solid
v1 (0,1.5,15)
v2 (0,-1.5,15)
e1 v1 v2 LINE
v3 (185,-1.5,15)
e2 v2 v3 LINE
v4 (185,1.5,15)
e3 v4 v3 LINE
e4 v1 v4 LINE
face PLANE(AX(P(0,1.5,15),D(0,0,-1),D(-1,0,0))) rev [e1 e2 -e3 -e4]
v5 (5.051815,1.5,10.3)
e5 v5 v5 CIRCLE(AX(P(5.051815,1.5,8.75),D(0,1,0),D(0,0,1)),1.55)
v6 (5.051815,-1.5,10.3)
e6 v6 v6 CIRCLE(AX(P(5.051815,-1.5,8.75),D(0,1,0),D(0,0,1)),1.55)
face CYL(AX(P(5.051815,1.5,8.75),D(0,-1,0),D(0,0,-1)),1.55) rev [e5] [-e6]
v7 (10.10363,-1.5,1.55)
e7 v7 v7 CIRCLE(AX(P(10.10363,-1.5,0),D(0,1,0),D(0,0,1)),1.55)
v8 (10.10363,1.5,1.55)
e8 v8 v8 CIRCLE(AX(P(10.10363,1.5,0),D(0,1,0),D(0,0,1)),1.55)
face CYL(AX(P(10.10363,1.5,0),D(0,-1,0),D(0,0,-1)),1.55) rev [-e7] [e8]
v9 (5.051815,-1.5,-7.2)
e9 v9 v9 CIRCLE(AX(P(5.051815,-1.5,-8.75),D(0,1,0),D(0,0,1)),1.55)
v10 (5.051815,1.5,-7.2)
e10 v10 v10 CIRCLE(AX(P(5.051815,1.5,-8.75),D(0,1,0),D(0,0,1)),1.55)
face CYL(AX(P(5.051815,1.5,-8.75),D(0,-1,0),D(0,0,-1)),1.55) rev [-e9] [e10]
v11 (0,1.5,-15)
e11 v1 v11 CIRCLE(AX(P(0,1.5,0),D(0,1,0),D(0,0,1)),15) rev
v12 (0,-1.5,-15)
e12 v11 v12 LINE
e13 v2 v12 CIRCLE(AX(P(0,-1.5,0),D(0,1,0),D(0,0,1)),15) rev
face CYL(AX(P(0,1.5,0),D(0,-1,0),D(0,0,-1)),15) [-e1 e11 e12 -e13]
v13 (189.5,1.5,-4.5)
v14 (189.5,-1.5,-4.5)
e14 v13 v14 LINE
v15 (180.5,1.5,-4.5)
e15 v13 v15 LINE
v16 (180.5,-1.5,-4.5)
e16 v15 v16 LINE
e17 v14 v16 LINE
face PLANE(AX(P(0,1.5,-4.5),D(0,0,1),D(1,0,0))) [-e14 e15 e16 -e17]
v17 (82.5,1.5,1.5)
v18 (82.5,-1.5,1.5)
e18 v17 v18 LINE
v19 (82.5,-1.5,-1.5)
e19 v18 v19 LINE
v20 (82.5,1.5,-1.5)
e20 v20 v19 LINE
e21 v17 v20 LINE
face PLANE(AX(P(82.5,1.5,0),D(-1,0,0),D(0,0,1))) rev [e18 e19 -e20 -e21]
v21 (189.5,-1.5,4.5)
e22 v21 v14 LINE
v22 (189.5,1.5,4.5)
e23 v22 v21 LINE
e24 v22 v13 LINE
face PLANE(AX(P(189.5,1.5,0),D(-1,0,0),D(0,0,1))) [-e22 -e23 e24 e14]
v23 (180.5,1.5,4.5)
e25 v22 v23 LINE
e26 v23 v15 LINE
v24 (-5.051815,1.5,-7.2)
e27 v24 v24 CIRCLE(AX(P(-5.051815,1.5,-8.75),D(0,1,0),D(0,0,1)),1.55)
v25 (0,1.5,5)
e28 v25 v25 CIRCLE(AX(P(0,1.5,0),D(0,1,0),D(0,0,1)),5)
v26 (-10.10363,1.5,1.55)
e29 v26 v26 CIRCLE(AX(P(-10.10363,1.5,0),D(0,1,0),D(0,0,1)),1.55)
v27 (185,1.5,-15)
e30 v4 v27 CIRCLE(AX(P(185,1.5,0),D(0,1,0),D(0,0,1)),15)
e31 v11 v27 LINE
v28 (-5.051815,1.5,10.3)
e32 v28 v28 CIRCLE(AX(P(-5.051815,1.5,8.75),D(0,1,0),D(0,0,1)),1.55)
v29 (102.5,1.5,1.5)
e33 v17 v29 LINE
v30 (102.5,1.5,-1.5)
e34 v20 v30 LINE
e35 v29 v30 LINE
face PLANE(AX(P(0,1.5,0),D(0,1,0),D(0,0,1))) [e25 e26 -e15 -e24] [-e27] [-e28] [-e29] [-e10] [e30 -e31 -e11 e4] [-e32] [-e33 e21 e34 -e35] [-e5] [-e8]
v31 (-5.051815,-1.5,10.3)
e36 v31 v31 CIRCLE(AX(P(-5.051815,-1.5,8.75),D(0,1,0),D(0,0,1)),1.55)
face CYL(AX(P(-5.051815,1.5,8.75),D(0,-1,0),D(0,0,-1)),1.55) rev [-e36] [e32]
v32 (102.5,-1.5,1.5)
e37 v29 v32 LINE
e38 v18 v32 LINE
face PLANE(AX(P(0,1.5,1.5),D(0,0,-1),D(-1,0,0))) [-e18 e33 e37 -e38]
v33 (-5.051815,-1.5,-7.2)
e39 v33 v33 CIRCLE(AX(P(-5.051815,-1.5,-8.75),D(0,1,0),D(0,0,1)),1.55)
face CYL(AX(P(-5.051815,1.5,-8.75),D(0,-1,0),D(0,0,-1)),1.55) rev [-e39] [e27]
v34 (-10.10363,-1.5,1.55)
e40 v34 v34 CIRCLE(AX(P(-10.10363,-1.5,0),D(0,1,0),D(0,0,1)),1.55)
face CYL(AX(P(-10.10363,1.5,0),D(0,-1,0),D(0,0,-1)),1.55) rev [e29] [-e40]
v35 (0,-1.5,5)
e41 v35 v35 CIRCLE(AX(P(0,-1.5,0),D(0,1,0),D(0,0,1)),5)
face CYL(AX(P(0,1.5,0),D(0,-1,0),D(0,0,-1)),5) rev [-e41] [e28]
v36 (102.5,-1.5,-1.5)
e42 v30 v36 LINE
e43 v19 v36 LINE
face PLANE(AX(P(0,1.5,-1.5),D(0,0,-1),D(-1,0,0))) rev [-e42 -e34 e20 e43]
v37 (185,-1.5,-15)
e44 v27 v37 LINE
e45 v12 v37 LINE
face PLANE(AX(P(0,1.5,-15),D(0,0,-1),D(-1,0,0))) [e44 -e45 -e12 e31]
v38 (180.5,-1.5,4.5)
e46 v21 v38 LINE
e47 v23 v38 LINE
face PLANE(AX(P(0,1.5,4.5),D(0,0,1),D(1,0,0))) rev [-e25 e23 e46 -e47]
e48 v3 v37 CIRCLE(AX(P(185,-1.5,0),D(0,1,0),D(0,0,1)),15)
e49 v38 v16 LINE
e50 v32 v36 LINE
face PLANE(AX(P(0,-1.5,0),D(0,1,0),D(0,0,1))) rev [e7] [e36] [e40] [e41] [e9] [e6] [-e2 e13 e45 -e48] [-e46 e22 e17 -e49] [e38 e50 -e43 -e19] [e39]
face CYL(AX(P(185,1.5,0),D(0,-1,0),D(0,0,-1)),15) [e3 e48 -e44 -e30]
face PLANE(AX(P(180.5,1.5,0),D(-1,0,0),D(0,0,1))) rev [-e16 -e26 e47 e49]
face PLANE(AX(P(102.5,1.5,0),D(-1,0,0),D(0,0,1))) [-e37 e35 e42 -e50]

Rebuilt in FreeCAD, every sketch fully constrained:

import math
import FreeCAD as App
import Part
import Sketcher

V = App.Vector
Q = App.Units.Quantity


def add_polygon(sketch, points):
    """Adds a closed chain of lines whose ends are joined by coincident constraints."""
    first, n = sketch.GeometryCount, len(points)
    for a, b in zip(points, points[1:] + points[:1]):
        sketch.addGeometry(Part.LineSegment(App.Vector(*a, 0), App.Vector(*b, 0)), False)
    for i in range(n):
        sketch.addConstraint(Sketcher.Constraint("Coincident", first + i, 2, first + (i + 1) % n, 1))

doc = App.newDocument("Part")
body = doc.addObject("PartDesign::Body", "Body")

# Sketch on XZ plane
sketch1 = doc.addObject("Sketcher::SketchObject", "Sketch")
body.addObject(sketch1)
sketch1.AttachmentSupport = (doc.XZ_Plane, [""])
sketch1.MapMode = "FlatFace"
sketch1.addGeometry(Part.LineSegment(V(185, -15, 0), V(0, -15, 0)), False)  # 0
sketch1.addGeometry(Part.ArcOfCircle(Part.Circle(V(0, 0, 0), V(0, 0, 1), 15), math.radians(90), math.radians(270)), False)  # 1
sketch1.addGeometry(Part.LineSegment(V(0, 15, 0), V(185, 15, 0)), False)  # 2
sketch1.addGeometry(Part.ArcOfCircle(Part.Circle(V(185, 0, 0), V(0, 0, 1), 15), math.radians(-90), math.radians(90)), False)  # 3
sketch1.addGeometry(Part.Circle(V(5.1, 8.8, 0), V(0, 0, 1), 1.6), False)  # 4
sketch1.addGeometry(Part.Circle(V(-5.1, 8.8, 0), V(0, 0, 1), 1.6), False)  # 5
add_polygon(sketch1, [(180.5, 4.5), (180.5, -4.5), (189.5, -4.5), (189.5, 4.5)])  # lines 6-9
add_polygon(sketch1, [(82.5, 1.5), (82.5, -1.5), (102.5, -1.5), (102.5, 1.5)])  # lines 10-13
sketch1.addGeometry(Part.Circle(V(10.1, 0, 0), V(0, 0, 1), 1.6), False)  # 14
sketch1.addGeometry(Part.Circle(V(0, 0, 0), V(0, 0, 1), 5), False)  # 15
sketch1.addGeometry(Part.Circle(V(-10.1, 0, 0), V(0, 0, 1), 1.6), False)  # 16
sketch1.addGeometry(Part.Circle(V(5.1, -8.8, 0), V(0, 0, 1), 1.6), False)  # 17
sketch1.addGeometry(Part.Circle(V(-5.1, -8.8, 0), V(0, 0, 1), 1.6), False)  # 18
sketch1.addConstraint([
    Sketcher.Constraint("Tangent", 0, 2, 1, 2),
    Sketcher.Constraint("Tangent", 1, 1, 2, 1),
    Sketcher.Constraint("Tangent", 2, 2, 3, 2),
    Sketcher.Constraint("Tangent", 3, 1, 0, 1),
    Sketcher.Constraint("Horizontal", 0),
    Sketcher.Constraint("Horizontal", 2),
    Sketcher.Constraint("Vertical", 6),
    Sketcher.Constraint("Horizontal", 7),
    Sketcher.Constraint("Vertical", 8),
    Sketcher.Constraint("Horizontal", 9),
    Sketcher.Constraint("Vertical", 10),
    Sketcher.Constraint("Horizontal", 11),
    Sketcher.Constraint("Vertical", 12),
    Sketcher.Constraint("Horizontal", 13),
    Sketcher.Constraint("Coincident", 1, 3, -1, 1),
    Sketcher.Constraint("Coincident", 15, 3, -1, 1),
    Sketcher.Constraint("Equal", 4, 5),
    Sketcher.Constraint("Equal", 5, 14),
    Sketcher.Constraint("Equal", 14, 16),
    Sketcher.Constraint("Equal", 16, 17),
    Sketcher.Constraint("Equal", 17, 18),
    Sketcher.Constraint("Symmetric", 14, 3, 16, 3, -1, 1),
    Sketcher.Constraint("Symmetric", 5, 3, 17, 3, -1, 1),
    Sketcher.Constraint("Symmetric", 4, 3, 18, 3, -1, 1),
    Sketcher.Constraint("Symmetric", 4, 3, 5, 3, -2),
    Sketcher.Constraint("PointOnObject", 14, 3, -1),
    Sketcher.Constraint("Equal", 9, 6),
    Sketcher.Constraint("Diameter", 15, Q("10 mm")),
    Sketcher.Constraint("Radius", 1, Q("15 mm")),
    Sketcher.Constraint("Diameter", 4, Q("3.1 mm")),
    Sketcher.Constraint("DistanceX", 0, 2, 0, 1, Q("185 mm")),
    Sketcher.Constraint("DistanceX", 7, 1, 7, 2, Q("9 mm")),
    Sketcher.Constraint("DistanceX", 11, 1, 11, 2, Q("20 mm")),
    Sketcher.Constraint("DistanceY", 10, 2, 10, 1, Q("3 mm")),
    Sketcher.Constraint("DistanceX", 11, 2, 6, 2, Q("78 mm")),
    Sketcher.Constraint("DistanceY", 6, 2, 11, 2, Q("3 mm")),
    Sketcher.Constraint("DistanceX", -1, 1, 6, 2, Q("180.5 mm")),
    Sketcher.Constraint("DistanceY", 6, 2, -1, 1, Q("4.5 mm")),
    Sketcher.Constraint("DistanceY", 17, 3, 4, 3, Q("17.5 mm")),
    Sketcher.Constraint("DistanceX", -1, 1, 14, 3, Q("10.10363 mm")),
    Sketcher.Constraint("DistanceX", 5, 3, 4, 3, Q("10.10363 mm")),
])
pad1 = doc.addObject("PartDesign::Pad", "Pad")
body.addObject(pad1)
pad1.Profile = sketch1
pad1.Length = 3
pad1.Midplane = True

doc.recompute()
